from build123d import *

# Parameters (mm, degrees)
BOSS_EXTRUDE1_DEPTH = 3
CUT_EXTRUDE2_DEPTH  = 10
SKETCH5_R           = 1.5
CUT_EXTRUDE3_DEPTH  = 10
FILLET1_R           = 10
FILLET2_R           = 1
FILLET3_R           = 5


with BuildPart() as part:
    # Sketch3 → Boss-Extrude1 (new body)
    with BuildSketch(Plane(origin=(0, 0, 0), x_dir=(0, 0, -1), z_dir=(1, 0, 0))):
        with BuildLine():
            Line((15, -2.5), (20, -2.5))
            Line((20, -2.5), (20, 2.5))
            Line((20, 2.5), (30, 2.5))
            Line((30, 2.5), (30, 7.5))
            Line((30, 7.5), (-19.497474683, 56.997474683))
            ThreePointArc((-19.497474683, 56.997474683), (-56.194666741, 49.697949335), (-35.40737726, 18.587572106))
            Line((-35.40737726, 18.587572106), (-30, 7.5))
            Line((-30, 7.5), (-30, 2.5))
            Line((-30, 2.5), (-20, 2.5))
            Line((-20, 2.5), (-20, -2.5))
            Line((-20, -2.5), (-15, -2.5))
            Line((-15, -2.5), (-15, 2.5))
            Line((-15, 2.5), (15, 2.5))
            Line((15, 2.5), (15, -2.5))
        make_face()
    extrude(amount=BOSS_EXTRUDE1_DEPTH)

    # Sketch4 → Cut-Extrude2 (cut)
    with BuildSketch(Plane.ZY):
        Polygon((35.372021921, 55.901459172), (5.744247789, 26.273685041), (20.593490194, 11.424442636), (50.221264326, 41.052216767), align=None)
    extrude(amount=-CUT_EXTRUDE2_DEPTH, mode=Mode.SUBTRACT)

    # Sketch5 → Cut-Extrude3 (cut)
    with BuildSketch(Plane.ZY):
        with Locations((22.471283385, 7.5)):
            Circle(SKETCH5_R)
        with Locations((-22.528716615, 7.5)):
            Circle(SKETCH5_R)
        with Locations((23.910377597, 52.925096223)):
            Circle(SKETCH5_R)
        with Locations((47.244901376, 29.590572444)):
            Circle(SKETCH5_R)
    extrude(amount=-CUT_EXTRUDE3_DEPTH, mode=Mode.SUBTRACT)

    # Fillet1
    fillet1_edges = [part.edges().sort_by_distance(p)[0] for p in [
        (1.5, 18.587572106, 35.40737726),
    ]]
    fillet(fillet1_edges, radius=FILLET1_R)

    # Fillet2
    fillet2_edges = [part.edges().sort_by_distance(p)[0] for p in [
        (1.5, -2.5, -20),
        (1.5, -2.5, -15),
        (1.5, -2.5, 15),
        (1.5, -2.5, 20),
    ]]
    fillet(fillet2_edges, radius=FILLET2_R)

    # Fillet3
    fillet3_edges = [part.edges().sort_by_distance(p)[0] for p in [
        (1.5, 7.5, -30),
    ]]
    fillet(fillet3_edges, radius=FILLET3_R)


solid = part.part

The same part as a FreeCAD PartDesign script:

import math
import FreeCAD as App
import Part
import Sketcher
from FreeCAD import Vector
Q = App.Units.Quantity


def edges_at(feature, points):
    """Names of the edges that pass closest to the given points."""
    edges = feature.Shape.Edges
    near = lambda p: min(range(len(edges)), key=lambda i: edges[i].distToShape(Part.Vertex(*p))[0])
    return sorted({f"Edge{near(p) + 1}" for p in points})


def add_polygon(sketch, points):
    """Adds a closed chain of lines whose ends are joined by coincident constraints."""
    first, n = sketch.GeometryCount, len(points)
    for a, b in zip(points, points[1:] + points[:1]):
        sketch.addGeometry(Part.LineSegment(App.Vector(*a, 0), App.Vector(*b, 0)), False)
    for i in range(n):
        sketch.addConstraint(Sketcher.Constraint("Coincident", first + i, 2, first + (i + 1) % n, 1))

doc = App.newDocument("Part")
body = doc.addObject("PartDesign::Body", "Body")

# Sketch on YZ plane
sketch1 = body.newObject("Sketcher::SketchObject", "Sketch")
sketch1.AttachmentSupport = (doc.getObject("YZ_Plane"), [""])
sketch1.MapMode = "FlatFace"
sketch1.addGeometry([
    Part.LineSegment(Vector(-2.5, -15, 0), Vector(-2.5, -20, 0)),  # 0
    Part.LineSegment(Vector(-2.5, -20, 0), Vector(2.5, -20, 0)),  # 1
    Part.LineSegment(Vector(2.5, -20, 0), Vector(2.5, -30, 0)),  # 2
    Part.LineSegment(Vector(2.5, -30, 0), Vector(7.5, -30, 0)),  # 3
    Part.LineSegment(Vector(7.5, -30, 0), Vector(56.997475, 19.497475, 0)),  # 4
    Part.ArcOfCircle(Part.Circle(Vector(41.087572, 35.407377, 0), Vector(0, 0, 1), 22.5), math.radians(-45), math.radians(180)),  # 5
    Part.LineSegment(Vector(18.587572, 35.407377, 0), Vector(7.5, 30, 0)),  # 6
    Part.LineSegment(Vector(7.5, 30, 0), Vector(2.5, 30, 0)),  # 7
    Part.LineSegment(Vector(2.5, 30, 0), Vector(2.5, 20, 0)),  # 8
    Part.LineSegment(Vector(2.5, 20, 0), Vector(-2.5, 20, 0)),  # 9
    Part.LineSegment(Vector(-2.5, 20, 0), Vector(-2.5, 15, 0)),  # 10
    Part.LineSegment(Vector(-2.5, 15, 0), Vector(2.5, 15, 0)),  # 11
    Part.LineSegment(Vector(2.5, 15, 0), Vector(2.5, -15, 0)),  # 12
    Part.LineSegment(Vector(2.5, -15, 0), Vector(-2.5, -15, 0)),  # 13
], False)
sketch1.addConstraint([
    Sketcher.Constraint("Coincident", 0, 2, 1, 1),
    Sketcher.Constraint("Coincident", 1, 2, 2, 1),
    Sketcher.Constraint("Coincident", 2, 2, 3, 1),
    Sketcher.Constraint("Coincident", 3, 2, 4, 1),
    Sketcher.Constraint("Tangent", 4, 2, 5, 1),
    Sketcher.Constraint("Coincident", 5, 2, 6, 1),
    Sketcher.Constraint("Coincident", 6, 2, 7, 1),
    Sketcher.Constraint("Coincident", 7, 2, 8, 1),
    Sketcher.Constraint("Coincident", 8, 2, 9, 1),
    Sketcher.Constraint("Coincident", 9, 2, 10, 1),
    Sketcher.Constraint("Coincident", 10, 2, 11, 1),
    Sketcher.Constraint("Coincident", 11, 2, 12, 1),
    Sketcher.Constraint("Coincident", 12, 2, 13, 1),
    Sketcher.Constraint("Coincident", 13, 2, 0, 1),
    Sketcher.Constraint("Vertical", 0),
    Sketcher.Constraint("Horizontal", 1),
    Sketcher.Constraint("Vertical", 2),
    Sketcher.Constraint("Horizontal", 3),
    Sketcher.Constraint("Horizontal", 7),
    Sketcher.Constraint("Vertical", 8),
    Sketcher.Constraint("Horizontal", 9),
    Sketcher.Constraint("Vertical", 10),
    Sketcher.Constraint("Horizontal", 11),
    Sketcher.Constraint("Vertical", 12),
    Sketcher.Constraint("Horizontal", 13),
    Sketcher.Constraint("Symmetric", 0, 2, 8, 2, -1, 1),
    Sketcher.Constraint("Symmetric", 10, 2, 12, 2, -1, 1),
    Sketcher.Constraint("Symmetric", 3, 2, 6, 2, -1),
    Sketcher.Constraint("Vertical", 2, 2, 7, 2),
    Sketcher.Constraint("Vertical", 0, 2, 9, 2),
    Sketcher.Constraint("Equal", 1, 3),
    Sketcher.Constraint("Equal", 13, 0),
    Sketcher.Constraint("Radius", 5, 22.5),
    Sketcher.Constraint("DistanceX", 1, 1, 1, 2, 5.0),
    Sketcher.Constraint("DistanceY", 2, 2, 2, 1, 10.0),
    Sketcher.Constraint("DistanceY", 12, 2, 12, 1, 30.0),
    Sketcher.Constraint("Angle", 4, Q("45 deg")),
    Sketcher.Constraint("Distance", 4, 70.0),
    Sketcher.Constraint("Distance", 6, 12.335882),
])
pad1 = body.newObject("PartDesign::Pad", "Pad")
pad1.Profile = sketch1
pad1.Length = 3

# Sketch on YZ plane
sketch2 = body.newObject("Sketcher::SketchObject", "Sketch001")
sketch2.AttachmentSupport = (doc.getObject("YZ_Plane"), [""])
sketch2.MapMode = "FlatFace"
add_polygon(sketch2, [(55.901459, 35.372022), (26.273685, 5.744248), (11.424443, 20.59349), (41.052217, 50.221264)])  # lines 0-3
sketch2.addConstraint([
    Sketcher.Constraint("Perpendicular", 0, 1),
    Sketcher.Constraint("Perpendicular", 1, 2),
    Sketcher.Constraint("Perpendicular", 2, 3),
    Sketcher.Constraint("Angle", 0, Q("-135 deg")),
    Sketcher.Constraint("Distance", 1, 21.0),
    Sketcher.Constraint("Distance", 0, 41.9),
    Sketcher.Constraint("DistanceY", -1, 1, 1, 2, 20.59349),
    Sketcher.Constraint("DistanceX", -1, 1, 3, 2, 55.901459),
])
pocket1 = body.newObject("PartDesign::Pocket", "Pocket")
pocket1.Profile = sketch2
pocket1.Length = 10
pocket1.Reversed = True

# Sketch on YZ plane
sketch3 = body.newObject("Sketcher::SketchObject", "Sketch002")
sketch3.AttachmentSupport = (doc.getObject("YZ_Plane"), [""])
sketch3.MapMode = "FlatFace"
sketch3.addGeometry([
    Part.Circle(Vector(7.5, 22.471283, 0), Vector(0, 0, 1), 1.5),
    Part.Circle(Vector(7.5, -22.528717, 0), Vector(0, 0, 1), 1.5),
    Part.Circle(Vector(52.925096, 23.910378, 0), Vector(0, 0, 1), 1.5),
    Part.Circle(Vector(29.590572, 47.244901, 0), Vector(0, 0, 1), 1.5),
], False)
sketch3.addConstraint([
    Sketcher.Constraint("Equal", 0, 1),
    Sketcher.Constraint("Equal", 1, 2),
    Sketcher.Constraint("Equal", 2, 3),
    Sketcher.Constraint("Vertical", 0, 3, 1, 3),
    Sketcher.Constraint("Diameter", 0, 3.0),
    Sketcher.Constraint("DistanceY", 1, 3, 0, 3, 45.0),
    Sketcher.Constraint("DistanceX", -1, 1, 0, 3, 7.5),
    Sketcher.Constraint("DistanceY", -1, 1, 3, 3, 47.244901),
    Sketcher.Constraint("DistanceY", -1, 1, 0, 3, 22.471283),
    Sketcher.Constraint("DistanceX", -1, 1, 2, 3, 52.925096),
    Sketcher.Constraint("DistanceY", -1, 1, 2, 3, 23.910378),
    Sketcher.Constraint("DistanceX", -1, 1, 3, 3, 29.590572),
])
pocket2 = body.newObject("PartDesign::Pocket", "Pocket001")
pocket2.Profile = sketch3
pocket2.Length = 10
pocket2.Reversed = True
doc.recompute()

fillet = body.newObject("PartDesign::Fillet", "Fillet")
fillet.Base = (pocket2, edges_at(pocket2, [(1.5, 18.588, 35.407)]))
fillet.Radius = 10
doc.recompute()

fillet2 = body.newObject("PartDesign::Fillet", "Fillet001")
fillet2.Base = (fillet, edges_at(fillet, [
    (1.5, -2.5, -20),
    (1.5, -2.5, -15),
    (1.5, -2.5, 15),
    (1.5, -2.5, 20),
]))
fillet2.Radius = 1
doc.recompute()

fillet3 = body.newObject("PartDesign::Fillet", "Fillet002")
fillet3.Base = (fillet2, edges_at(fillet2, [(1.5, 7.5, -30)]))
fillet3.Radius = 5

doc.recompute()
